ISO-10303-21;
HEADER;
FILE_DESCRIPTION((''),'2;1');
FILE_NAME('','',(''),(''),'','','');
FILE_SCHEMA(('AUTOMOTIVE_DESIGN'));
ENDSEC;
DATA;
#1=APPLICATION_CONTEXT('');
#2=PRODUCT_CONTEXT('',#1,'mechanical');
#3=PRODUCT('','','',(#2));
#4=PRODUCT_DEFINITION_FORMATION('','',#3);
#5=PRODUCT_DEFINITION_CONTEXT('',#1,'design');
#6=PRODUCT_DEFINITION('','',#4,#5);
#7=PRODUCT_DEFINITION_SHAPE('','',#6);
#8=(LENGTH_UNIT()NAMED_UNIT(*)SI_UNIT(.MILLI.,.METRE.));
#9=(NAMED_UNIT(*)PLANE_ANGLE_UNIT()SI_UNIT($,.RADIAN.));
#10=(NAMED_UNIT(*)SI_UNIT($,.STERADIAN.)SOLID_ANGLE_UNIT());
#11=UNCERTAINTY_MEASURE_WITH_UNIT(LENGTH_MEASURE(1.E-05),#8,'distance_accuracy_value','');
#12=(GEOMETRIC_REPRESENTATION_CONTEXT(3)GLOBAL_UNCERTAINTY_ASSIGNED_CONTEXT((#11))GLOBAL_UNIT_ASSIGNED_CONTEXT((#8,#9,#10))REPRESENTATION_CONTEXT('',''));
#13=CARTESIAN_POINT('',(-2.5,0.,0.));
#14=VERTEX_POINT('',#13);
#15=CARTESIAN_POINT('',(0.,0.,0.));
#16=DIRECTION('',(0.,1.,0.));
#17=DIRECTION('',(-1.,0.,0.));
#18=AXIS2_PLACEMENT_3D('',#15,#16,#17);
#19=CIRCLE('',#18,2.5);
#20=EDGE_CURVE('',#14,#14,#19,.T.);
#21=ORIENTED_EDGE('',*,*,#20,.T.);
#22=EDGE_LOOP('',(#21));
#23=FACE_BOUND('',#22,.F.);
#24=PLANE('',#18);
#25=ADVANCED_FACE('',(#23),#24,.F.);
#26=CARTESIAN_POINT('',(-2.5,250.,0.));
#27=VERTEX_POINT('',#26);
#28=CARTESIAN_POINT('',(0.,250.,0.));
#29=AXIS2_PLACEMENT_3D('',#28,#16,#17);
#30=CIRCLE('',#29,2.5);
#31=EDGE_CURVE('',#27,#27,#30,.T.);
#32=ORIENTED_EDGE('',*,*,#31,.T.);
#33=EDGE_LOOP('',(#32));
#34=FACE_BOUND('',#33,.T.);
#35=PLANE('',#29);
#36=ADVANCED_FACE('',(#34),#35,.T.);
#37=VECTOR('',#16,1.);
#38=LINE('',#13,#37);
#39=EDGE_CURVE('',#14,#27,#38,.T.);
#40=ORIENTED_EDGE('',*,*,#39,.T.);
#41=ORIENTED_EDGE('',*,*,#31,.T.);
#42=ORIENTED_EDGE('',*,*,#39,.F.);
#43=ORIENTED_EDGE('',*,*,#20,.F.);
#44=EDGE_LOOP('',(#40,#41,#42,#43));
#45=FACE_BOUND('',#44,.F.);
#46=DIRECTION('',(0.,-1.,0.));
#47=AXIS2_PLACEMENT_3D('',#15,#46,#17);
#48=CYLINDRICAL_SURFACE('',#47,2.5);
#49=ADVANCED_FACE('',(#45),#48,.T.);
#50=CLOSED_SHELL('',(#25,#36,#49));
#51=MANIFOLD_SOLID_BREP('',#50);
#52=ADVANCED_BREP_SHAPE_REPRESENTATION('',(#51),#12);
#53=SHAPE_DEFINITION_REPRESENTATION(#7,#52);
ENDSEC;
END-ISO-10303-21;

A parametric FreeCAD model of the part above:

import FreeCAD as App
import Part
import Sketcher

V = App.Vector
Q = App.Units.Quantity

doc = App.newDocument("Part")
body = doc.addObject("PartDesign::Body", "Body")

# Sketch on XZ plane
sketch1 = doc.addObject("Sketcher::SketchObject", "Sketch")
body.addObject(sketch1)
sketch1.AttachmentSupport = (doc.XZ_Plane, [""])
sketch1.MapMode = "FlatFace"
sketch1.addGeometry(Part.Circle(V(0, 0, 0), V(0, 0, 1), 2.5), False)
sketch1.addConstraint(Sketcher.Constraint("Coincident", 0, 3, -1, 1))
sketch1.addConstraint(Sketcher.Constraint("Diameter", 0, Q("5 mm")))
pad1 = doc.addObject("PartDesign::Pad", "Pad")
body.addObject(pad1)
pad1.Profile = sketch1
pad1.Length = 250
pad1.Reversed = True

doc.recompute()
